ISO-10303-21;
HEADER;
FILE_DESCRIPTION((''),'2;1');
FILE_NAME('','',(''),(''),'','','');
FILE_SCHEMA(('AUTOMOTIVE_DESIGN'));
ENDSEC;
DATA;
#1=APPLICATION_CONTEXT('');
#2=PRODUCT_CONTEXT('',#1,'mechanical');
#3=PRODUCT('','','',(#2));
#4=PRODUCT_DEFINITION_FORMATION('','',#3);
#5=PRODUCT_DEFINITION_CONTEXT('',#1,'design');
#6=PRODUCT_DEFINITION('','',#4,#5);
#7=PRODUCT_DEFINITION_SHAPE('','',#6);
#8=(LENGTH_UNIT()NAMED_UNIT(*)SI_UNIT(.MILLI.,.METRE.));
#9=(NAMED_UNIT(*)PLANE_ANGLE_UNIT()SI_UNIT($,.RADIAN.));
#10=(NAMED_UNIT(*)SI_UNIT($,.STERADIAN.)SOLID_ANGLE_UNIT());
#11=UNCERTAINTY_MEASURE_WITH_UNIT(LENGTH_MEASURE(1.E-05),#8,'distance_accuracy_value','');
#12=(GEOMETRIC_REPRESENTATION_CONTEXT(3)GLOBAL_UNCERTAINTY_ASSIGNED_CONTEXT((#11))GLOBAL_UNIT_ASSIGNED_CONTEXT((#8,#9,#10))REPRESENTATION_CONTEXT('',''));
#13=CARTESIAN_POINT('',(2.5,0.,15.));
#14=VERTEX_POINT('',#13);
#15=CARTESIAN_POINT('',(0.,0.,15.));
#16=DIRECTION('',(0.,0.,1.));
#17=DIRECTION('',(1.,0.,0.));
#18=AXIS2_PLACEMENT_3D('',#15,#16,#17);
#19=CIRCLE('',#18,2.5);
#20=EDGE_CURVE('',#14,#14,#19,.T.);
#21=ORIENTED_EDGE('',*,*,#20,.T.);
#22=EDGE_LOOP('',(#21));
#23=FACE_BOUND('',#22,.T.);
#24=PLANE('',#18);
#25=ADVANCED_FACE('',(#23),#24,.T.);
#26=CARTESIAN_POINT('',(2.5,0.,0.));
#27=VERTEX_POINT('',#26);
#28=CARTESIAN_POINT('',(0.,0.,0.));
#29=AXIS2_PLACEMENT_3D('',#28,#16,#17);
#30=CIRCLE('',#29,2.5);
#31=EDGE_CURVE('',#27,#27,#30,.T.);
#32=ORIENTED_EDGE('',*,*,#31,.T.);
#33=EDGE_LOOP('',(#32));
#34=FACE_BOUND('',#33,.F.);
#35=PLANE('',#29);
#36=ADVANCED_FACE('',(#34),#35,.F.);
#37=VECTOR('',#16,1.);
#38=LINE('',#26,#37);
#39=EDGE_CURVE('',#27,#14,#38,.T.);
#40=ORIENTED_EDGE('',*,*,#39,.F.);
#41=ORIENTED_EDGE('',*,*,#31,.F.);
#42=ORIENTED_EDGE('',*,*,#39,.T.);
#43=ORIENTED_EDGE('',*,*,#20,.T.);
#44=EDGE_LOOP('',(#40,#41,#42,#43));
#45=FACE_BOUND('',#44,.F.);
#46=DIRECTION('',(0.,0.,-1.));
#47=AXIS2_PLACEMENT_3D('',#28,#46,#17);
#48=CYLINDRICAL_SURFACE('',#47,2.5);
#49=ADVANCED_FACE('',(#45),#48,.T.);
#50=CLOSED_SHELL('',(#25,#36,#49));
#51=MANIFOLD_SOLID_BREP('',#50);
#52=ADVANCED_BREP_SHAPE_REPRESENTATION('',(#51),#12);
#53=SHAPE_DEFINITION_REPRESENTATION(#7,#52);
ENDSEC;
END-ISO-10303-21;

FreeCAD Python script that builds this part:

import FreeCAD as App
import Part
import Sketcher

doc = App.newDocument("Part")
body = doc.addObject("PartDesign::Body", "Body")

# Sketch on XY plane
sketch1 = body.newObject("Sketcher::SketchObject", "Sketch")
sketch1.AttachmentSupport = (doc.getObject("XY_Plane"), [""])
sketch1.MapMode = "FlatFace"
sketch1.addGeometry(Part.Circle(App.Vector(0, 0, 0), App.Vector(0, 0, 1), 2.5), False)
sketch1.addConstraint(Sketcher.Constraint("Coincident", 0, 3, -1, 1))
sketch1.addConstraint(Sketcher.Constraint("Diameter", 0, 5.0))
pad1 = body.newObject("PartDesign::Pad", "Pad")
pad1.Profile = sketch1
pad1.Length = 15

doc.recompute()
